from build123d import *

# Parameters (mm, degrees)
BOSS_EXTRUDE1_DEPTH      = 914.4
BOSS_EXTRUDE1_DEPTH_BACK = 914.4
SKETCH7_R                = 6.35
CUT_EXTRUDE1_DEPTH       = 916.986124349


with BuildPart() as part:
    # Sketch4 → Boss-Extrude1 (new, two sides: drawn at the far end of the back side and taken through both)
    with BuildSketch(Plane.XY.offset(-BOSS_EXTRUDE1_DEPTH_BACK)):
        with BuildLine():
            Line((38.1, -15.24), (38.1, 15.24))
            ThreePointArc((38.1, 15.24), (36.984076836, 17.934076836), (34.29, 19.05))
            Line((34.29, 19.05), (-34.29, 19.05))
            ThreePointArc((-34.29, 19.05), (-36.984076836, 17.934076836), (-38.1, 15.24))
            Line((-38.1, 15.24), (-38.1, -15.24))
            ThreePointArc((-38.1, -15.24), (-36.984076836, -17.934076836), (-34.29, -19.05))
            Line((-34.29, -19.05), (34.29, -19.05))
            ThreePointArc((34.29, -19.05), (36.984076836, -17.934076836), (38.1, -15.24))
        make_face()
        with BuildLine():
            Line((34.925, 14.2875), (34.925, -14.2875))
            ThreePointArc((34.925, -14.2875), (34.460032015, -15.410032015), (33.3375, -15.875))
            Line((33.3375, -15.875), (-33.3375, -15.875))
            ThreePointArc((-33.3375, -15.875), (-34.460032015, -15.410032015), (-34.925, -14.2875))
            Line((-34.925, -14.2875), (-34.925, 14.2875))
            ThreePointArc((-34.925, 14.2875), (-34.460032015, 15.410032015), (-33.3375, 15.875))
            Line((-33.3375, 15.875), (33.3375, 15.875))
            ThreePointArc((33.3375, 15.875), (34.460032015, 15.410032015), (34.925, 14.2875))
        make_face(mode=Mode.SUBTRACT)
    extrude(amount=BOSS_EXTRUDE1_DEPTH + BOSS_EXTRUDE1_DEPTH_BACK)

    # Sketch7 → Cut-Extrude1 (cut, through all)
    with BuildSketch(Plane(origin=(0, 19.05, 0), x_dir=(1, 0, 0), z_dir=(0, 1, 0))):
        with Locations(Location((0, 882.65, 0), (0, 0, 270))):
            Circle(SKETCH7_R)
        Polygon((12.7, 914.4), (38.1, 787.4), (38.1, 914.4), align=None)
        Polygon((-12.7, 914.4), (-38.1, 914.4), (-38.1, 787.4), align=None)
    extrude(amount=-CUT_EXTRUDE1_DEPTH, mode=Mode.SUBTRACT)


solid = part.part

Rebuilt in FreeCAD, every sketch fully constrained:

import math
import FreeCAD as App
import Part
import Sketcher
Q = App.Units.Quantity

doc = App.newDocument("Part")
params = doc.addObject("Spreadsheet::Sheet", "Params")
for row, (alias, value) in enumerate([
    ("sketch1_radius", "0.15 in"),
    ("sketch1_width", "2.7 in"),
    ("sketch1_height", "1.2 in"),
    ("sketch1_radius2", "0.0625 in"),
    ("sketch1_width2", "2.625 in"),
    ("pad1_length", "36 in"),
    ("pad1_length2", "36 in"),
    ("sketch2_diameter", "0.5 in"),
    ("sketch2_width", "1 in"),
    ("sketch2_height", "5 in"),
], start=1):
    params.set(f"A{row}", alias)
    params.set(f"B{row}", "=" + value)
    params.setAlias(f"B{row}", alias)

body = doc.addObject("PartDesign::Body", "Body")

# Sketch on XY plane
sketch1 = body.newObject("Sketcher::SketchObject", "Sketch")
sketch1.AttachmentSupport = (doc.getObject("XY_Plane"), [""])
sketch1.MapMode = "FlatFace"
sketch1.addGeometry([
    Part.LineSegment(App.Vector(38.1, -15.24, 0), App.Vector(38.1, 15.24, 0)),  # 0
    Part.ArcOfCircle(Part.Circle(App.Vector(34.29, 15.24, 0), App.Vector(0, 0, 1), 3.81), math.radians(0), math.radians(90)),  # 1
    Part.LineSegment(App.Vector(34.29, 19.05, 0), App.Vector(-34.29, 19.05, 0)),  # 2
    Part.ArcOfCircle(Part.Circle(App.Vector(-34.29, 15.24, 0), App.Vector(0, 0, 1), 3.81), math.radians(90), math.radians(180)),  # 3
    Part.LineSegment(App.Vector(-38.1, 15.24, 0), App.Vector(-38.1, -15.24, 0)),  # 4
    Part.ArcOfCircle(Part.Circle(App.Vector(-34.29, -15.24, 0), App.Vector(0, 0, 1), 3.81), math.radians(-180), math.radians(-90)),  # 5
    Part.LineSegment(App.Vector(-34.29, -19.05, 0), App.Vector(34.29, -19.05, 0)),  # 6
    Part.ArcOfCircle(Part.Circle(App.Vector(34.29, -15.24, 0), App.Vector(0, 0, 1), 3.81), math.radians(-90), math.radians(0)),  # 7
    Part.ArcOfCircle(Part.Circle(App.Vector(33.3375, 14.2875, 0), App.Vector(0, 0, 1), 1.5875), math.radians(0), math.radians(90)),  # 8
    Part.LineSegment(App.Vector(34.925, 14.2875, 0), App.Vector(34.925, -14.2875, 0)),  # 9
    Part.ArcOfCircle(Part.Circle(App.Vector(33.3375, -14.2875, 0), App.Vector(0, 0, 1), 1.5875), math.radians(-90), math.radians(0)),  # 10
    Part.LineSegment(App.Vector(33.3375, -15.875, 0), App.Vector(-33.3375, -15.875, 0)),  # 11
    Part.ArcOfCircle(Part.Circle(App.Vector(-33.3375, -14.2875, 0), App.Vector(0, 0, 1), 1.5875), math.radians(180), math.radians(270)),  # 12
    Part.LineSegment(App.Vector(-34.925, -14.2875, 0), App.Vector(-34.925, 14.2875, 0)),  # 13
    Part.ArcOfCircle(Part.Circle(App.Vector(-33.3375, 14.2875, 0), App.Vector(0, 0, 1), 1.5875), math.radians(90), math.radians(180)),  # 14
    Part.LineSegment(App.Vector(-33.3375, 15.875, 0), App.Vector(33.3375, 15.875, 0)),  # 15
], False)
sketch1.addConstraint([
    Sketcher.Constraint("Tangent", 0, 2, 1, 1),
    Sketcher.Constraint("Tangent", 1, 2, 2, 1),
    Sketcher.Constraint("Tangent", 2, 2, 3, 1),
    Sketcher.Constraint("Tangent", 3, 2, 4, 1),
    Sketcher.Constraint("Tangent", 4, 2, 5, 1),
    Sketcher.Constraint("Tangent", 5, 2, 6, 1),
    Sketcher.Constraint("Tangent", 6, 2, 7, 1),
    Sketcher.Constraint("Tangent", 7, 2, 0, 1),
    Sketcher.Constraint("Tangent", 8, 1, 9, 1),
    Sketcher.Constraint("Tangent", 9, 2, 10, 2),
    Sketcher.Constraint("Tangent", 10, 1, 11, 1),
    Sketcher.Constraint("Tangent", 11, 2, 12, 2),
    Sketcher.Constraint("Tangent", 12, 1, 13, 1),
    Sketcher.Constraint("Tangent", 13, 2, 14, 2),
    Sketcher.Constraint("Tangent", 14, 1, 15, 1),
    Sketcher.Constraint("Tangent", 15, 2, 8, 2),
    Sketcher.Constraint("Vertical", 0),
    Sketcher.Constraint("Horizontal", 2),
    Sketcher.Constraint("Vertical", 4),
    Sketcher.Constraint("Horizontal", 6),
    Sketcher.Constraint("Vertical", 9),
    Sketcher.Constraint("Horizontal", 11),
    Sketcher.Constraint("Vertical", 13),
    Sketcher.Constraint("Horizontal", 15),
    Sketcher.Constraint("Equal", 1, 3),
    Sketcher.Constraint("Equal", 3, 5),
    Sketcher.Constraint("Equal", 5, 7),
    Sketcher.Constraint("Equal", 8, 10),
    Sketcher.Constraint("Equal", 10, 12),
    Sketcher.Constraint("Equal", 12, 14),
    Sketcher.Constraint("Symmetric", 1, 3, 5, 3, -1, 1),
    Sketcher.Constraint("Symmetric", 8, 3, 12, 3, -1, 1),
    Sketcher.Constraint("Radius", 1, Q("0.15 in")),
    Sketcher.Constraint("DistanceX", 2, 2, 2, 1, Q("2.7 in")),
    Sketcher.Constraint("DistanceY", 0, 1, 0, 2, Q("1.2 in")),
    Sketcher.Constraint("Radius", 8, Q("0.0625 in")),
    Sketcher.Constraint("DistanceX", 11, 2, 11, 1, Q("2.625 in")),
    Sketcher.Constraint("DistanceY", 9, 2, 9, 1, Q("1.125 in")),
])
sketch1.setExpression("Constraints[32]", "Params.sketch1_radius")
sketch1.setExpression("Constraints[33]", "Params.sketch1_width")
sketch1.setExpression("Constraints[34]", "Params.sketch1_height")
sketch1.setExpression("Constraints[35]", "Params.sketch1_radius2")
sketch1.setExpression("Constraints[36]", "Params.sketch1_width2")
pad1 = body.newObject("PartDesign::Pad", "Pad")
pad1.Profile = sketch1
pad1.Type = "TwoLengths"
pad1.setExpression("Length", "Params.pad1_length")
pad1.setExpression("Length2", "Params.pad1_length2")

# Sketch on XZ plane
sketch2 = body.newObject("Sketcher::SketchObject", "Sketch001")
sketch2.AttachmentSupport = (doc.getObject("XZ_Plane"), [""])
sketch2.MapMode = "FlatFace"
sketch2.AttachmentOffset = App.Placement(App.Vector(0, 0, -0.75 * 25.4), App.Rotation())
sketch2.addGeometry([
    Part.Circle(App.Vector(0, -882.65, 0), App.Vector(0, 0, 1), 6.35),  # 0
    Part.LineSegment(App.Vector(12.7, -914.4, 0), App.Vector(38.1, -787.4, 0)),  # 1
    Part.LineSegment(App.Vector(38.1, -787.4, 0), App.Vector(38.1, -914.4, 0)),  # 2
    Part.LineSegment(App.Vector(38.1, -914.4, 0), App.Vector(12.7, -914.4, 0)),  # 3
    Part.LineSegment(App.Vector(-12.7, -914.4, 0), App.Vector(-38.1, -914.4, 0)),  # 4
    Part.LineSegment(App.Vector(-38.1, -914.4, 0), App.Vector(-38.1, -787.4, 0)),  # 5
    Part.LineSegment(App.Vector(-38.1, -787.4, 0), App.Vector(-12.7, -914.4, 0)),  # 6
], False)
sketch2.addConstraint([
    Sketcher.Constraint("Coincident", 1, 2, 2, 1),
    Sketcher.Constraint("Coincident", 2, 2, 3, 1),
    Sketcher.Constraint("Coincident", 3, 2, 1, 1),
    Sketcher.Constraint("Coincident", 4, 2, 5, 1),
    Sketcher.Constraint("Coincident", 5, 2, 6, 1),
    Sketcher.Constraint("Coincident", 6, 2, 4, 1),
    Sketcher.Constraint("Vertical", 2),
    Sketcher.Constraint("Horizontal", 3),
    Sketcher.Constraint("Horizontal", 4),
    Sketcher.Constraint("Vertical", 5),
    Sketcher.Constraint("Symmetric", 2, 2, 4, 2, -2),
    Sketcher.Constraint("PointOnObject", 0, 3, -2),
    Sketcher.Constraint("Horizontal", 1, 2, 5, 2),
    Sketcher.Constraint("Equal", 3, 4),
    Sketcher.Constraint("Diameter", 0, Q("0.5 in")),
    Sketcher.Constraint("DistanceX", 3, 2, 3, 1, Q("1 in")),
    Sketcher.Constraint("DistanceY", 2, 2, 2, 1, Q("5 in")),
    Sketcher.Constraint("DistanceY", 1, 2, -1, 1, Q("31 in")),
    Sketcher.Constraint("DistanceX", 4, 2, 3, 2, Q("2 in")),
    Sketcher.Constraint("DistanceY", 0, 3, -1, 1, Q("34.75 in")),
])
sketch2.setExpression("Constraints[14]", "Params.sketch2_diameter")
sketch2.setExpression("Constraints[15]", "Params.sketch2_width")
sketch2.setExpression("Constraints[16]", "Params.sketch2_height")
pocket1 = body.newObject("PartDesign::Pocket", "Pocket")
pocket1.Profile = sketch2
pocket1.Type = "ThroughAll"
pocket1.Reversed = True

doc.recompute()
